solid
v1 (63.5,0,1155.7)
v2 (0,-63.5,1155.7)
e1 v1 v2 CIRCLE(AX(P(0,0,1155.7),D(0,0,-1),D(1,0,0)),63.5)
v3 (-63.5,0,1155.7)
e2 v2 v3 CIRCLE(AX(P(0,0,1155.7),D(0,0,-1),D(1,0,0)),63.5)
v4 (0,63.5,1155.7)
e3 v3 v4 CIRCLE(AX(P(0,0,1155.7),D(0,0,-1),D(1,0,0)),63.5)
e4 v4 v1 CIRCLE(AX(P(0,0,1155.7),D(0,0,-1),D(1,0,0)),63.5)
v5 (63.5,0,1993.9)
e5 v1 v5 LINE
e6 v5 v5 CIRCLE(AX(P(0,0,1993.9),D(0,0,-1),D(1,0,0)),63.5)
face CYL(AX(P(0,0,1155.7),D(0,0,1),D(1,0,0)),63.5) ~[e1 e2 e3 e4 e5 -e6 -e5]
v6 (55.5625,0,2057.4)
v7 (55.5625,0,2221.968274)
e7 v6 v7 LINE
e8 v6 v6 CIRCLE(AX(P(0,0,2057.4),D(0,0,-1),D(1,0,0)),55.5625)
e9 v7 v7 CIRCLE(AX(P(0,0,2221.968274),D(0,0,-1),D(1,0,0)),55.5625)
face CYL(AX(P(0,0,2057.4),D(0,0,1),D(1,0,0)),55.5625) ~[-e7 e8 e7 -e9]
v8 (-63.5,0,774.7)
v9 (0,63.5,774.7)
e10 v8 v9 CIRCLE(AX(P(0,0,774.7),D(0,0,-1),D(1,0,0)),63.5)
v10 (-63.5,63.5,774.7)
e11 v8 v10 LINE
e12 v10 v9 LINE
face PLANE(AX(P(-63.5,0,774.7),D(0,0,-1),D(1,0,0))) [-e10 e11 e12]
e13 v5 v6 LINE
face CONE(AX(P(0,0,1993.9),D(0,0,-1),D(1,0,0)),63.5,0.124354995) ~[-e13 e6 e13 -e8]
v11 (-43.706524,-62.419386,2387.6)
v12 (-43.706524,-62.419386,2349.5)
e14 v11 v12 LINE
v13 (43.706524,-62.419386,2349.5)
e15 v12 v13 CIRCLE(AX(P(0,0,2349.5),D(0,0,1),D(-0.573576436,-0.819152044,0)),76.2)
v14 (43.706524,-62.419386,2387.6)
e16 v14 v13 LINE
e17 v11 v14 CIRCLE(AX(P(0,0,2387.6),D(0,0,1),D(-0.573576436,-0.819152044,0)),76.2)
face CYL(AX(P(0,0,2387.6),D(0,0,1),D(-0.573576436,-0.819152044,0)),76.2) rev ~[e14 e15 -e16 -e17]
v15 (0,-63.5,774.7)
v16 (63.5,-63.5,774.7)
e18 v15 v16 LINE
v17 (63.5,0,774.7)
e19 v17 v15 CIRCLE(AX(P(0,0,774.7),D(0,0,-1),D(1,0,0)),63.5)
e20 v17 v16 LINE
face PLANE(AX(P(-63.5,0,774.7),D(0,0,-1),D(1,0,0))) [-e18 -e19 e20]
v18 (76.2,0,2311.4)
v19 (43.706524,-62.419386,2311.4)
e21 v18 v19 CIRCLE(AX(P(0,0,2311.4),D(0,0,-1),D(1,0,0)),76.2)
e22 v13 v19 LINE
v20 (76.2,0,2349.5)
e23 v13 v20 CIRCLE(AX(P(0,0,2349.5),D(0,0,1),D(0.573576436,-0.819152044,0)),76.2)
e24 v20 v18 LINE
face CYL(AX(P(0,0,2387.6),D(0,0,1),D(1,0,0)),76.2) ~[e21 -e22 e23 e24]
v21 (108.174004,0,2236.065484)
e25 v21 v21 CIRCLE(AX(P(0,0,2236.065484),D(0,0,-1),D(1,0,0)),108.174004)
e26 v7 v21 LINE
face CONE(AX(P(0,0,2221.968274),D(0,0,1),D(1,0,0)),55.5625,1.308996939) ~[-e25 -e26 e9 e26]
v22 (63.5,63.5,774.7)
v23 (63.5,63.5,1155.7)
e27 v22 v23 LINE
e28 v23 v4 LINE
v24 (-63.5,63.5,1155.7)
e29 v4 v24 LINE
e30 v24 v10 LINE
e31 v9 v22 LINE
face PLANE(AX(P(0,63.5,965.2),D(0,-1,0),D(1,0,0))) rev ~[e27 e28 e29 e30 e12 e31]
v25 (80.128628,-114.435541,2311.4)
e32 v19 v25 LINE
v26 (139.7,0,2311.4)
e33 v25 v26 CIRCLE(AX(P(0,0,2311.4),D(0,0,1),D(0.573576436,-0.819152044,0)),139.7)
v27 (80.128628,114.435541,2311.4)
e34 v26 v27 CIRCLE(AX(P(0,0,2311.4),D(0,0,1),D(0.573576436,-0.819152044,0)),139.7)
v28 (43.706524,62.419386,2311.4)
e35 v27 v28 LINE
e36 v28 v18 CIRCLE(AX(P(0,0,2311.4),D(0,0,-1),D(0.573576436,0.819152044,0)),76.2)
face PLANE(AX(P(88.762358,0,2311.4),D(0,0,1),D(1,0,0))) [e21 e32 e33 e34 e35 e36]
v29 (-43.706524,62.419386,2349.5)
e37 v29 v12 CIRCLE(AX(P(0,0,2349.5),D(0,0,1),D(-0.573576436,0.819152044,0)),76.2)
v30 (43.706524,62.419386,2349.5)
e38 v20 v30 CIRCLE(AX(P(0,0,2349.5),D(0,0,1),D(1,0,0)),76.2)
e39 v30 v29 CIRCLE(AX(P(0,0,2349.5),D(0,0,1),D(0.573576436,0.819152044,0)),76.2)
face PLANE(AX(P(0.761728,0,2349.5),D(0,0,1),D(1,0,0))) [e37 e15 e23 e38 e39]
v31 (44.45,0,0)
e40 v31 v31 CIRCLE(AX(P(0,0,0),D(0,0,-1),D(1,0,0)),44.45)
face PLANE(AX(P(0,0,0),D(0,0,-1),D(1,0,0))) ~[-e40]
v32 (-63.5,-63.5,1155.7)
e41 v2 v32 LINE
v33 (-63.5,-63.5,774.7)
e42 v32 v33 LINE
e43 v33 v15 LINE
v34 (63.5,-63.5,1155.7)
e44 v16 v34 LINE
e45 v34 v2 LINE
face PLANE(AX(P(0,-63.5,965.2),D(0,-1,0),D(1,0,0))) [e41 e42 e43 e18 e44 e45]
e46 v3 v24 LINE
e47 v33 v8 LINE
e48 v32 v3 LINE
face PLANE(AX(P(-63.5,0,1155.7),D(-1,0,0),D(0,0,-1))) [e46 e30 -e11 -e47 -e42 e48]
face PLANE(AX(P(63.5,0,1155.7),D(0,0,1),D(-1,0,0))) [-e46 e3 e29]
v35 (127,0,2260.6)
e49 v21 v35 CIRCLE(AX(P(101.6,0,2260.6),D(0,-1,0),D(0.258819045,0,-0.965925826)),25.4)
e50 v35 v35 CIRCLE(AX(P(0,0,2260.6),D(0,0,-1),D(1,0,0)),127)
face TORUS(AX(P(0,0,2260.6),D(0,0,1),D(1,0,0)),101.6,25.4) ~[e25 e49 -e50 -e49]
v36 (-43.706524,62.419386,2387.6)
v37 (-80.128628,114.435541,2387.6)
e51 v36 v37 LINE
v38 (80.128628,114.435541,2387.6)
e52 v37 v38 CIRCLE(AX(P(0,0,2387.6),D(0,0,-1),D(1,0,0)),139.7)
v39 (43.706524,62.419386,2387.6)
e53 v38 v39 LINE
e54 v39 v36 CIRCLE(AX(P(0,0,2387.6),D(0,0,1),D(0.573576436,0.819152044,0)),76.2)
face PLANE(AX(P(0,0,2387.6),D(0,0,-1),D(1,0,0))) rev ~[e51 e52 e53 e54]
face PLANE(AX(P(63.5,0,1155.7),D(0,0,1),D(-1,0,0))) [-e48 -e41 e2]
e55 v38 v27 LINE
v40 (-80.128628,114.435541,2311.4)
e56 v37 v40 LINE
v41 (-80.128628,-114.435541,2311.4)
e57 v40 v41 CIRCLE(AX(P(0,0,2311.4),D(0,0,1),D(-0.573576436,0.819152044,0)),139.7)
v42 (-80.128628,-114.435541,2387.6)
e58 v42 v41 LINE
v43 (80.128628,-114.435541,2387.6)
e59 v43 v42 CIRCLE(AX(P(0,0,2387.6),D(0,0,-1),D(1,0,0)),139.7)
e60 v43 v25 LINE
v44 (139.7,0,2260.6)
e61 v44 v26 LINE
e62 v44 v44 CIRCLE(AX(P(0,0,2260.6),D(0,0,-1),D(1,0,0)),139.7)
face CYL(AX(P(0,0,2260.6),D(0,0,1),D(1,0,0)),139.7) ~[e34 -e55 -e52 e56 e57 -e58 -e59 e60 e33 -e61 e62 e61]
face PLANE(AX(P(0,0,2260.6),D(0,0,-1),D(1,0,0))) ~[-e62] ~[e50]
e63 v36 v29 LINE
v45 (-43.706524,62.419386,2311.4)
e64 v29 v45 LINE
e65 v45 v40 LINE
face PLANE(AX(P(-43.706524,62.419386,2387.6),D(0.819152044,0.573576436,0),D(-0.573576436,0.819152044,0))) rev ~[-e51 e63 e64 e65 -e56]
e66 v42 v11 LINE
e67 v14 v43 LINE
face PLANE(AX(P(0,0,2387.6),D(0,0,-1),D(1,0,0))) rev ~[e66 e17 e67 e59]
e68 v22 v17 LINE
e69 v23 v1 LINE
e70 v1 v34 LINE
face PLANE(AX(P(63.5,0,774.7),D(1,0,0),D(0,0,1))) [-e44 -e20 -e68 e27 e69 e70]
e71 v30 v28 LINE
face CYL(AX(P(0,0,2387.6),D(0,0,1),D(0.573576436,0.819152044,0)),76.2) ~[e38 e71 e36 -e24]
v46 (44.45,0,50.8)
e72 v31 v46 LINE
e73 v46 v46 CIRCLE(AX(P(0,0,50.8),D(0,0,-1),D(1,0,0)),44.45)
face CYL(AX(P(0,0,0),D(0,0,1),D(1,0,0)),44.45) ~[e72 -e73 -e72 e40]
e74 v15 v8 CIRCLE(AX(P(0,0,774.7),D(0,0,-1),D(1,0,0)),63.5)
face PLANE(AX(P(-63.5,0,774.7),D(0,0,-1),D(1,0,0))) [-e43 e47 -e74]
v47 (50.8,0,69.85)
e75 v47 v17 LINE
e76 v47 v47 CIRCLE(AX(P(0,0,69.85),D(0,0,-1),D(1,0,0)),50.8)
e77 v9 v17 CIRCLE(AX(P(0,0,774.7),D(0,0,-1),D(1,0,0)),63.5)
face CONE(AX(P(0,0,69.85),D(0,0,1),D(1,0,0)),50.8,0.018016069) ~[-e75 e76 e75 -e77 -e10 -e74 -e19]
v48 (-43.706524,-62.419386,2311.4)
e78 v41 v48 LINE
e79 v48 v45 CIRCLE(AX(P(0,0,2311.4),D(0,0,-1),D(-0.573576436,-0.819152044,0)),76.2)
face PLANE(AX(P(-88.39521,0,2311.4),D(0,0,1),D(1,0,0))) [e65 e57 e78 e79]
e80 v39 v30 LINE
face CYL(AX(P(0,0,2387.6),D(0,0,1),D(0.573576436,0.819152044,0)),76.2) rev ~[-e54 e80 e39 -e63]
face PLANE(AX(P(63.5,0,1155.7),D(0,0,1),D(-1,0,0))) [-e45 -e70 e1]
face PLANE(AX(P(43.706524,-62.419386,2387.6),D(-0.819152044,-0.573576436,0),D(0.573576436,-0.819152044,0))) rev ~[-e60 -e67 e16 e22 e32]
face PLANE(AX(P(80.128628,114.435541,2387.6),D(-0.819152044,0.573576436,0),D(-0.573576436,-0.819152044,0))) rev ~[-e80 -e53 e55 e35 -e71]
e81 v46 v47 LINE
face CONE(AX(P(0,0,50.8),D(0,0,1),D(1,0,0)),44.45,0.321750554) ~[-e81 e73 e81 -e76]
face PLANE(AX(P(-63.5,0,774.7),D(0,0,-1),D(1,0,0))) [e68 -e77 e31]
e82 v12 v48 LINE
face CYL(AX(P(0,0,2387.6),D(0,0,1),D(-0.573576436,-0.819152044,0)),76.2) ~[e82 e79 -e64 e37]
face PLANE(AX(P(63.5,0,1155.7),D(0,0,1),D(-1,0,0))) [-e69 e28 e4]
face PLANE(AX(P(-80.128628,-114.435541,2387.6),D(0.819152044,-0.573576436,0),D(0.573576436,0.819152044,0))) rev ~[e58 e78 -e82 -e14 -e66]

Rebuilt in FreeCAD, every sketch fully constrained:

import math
import FreeCAD as App
import Part
import Sketcher
from FreeCAD import Vector
Q = App.Units.Quantity

doc = App.newDocument("Part")
body = doc.addObject("PartDesign::Body", "Body")

# Sketch on XZ plane
sketch1 = body.newObject("Sketcher::SketchObject", "Sketch")
sketch1.AttachmentSupport = (doc.getObject("XZ_Plane"), [""])
sketch1.MapMode = "FlatFace"
sketch1.addGeometry(Part.LineSegment(Vector(0, 1156, 0), Vector(64, 1156, 0)), False)
sketch1.addGeometry(Part.LineSegment(Vector(64, 1156, 0), Vector(64, 1994, 0)), False)
sketch1.addGeometry(Part.LineSegment(Vector(64, 1994, 0), Vector(56, 2057, 0)), False)
sketch1.addGeometry(Part.LineSegment(Vector(56, 2057, 0), Vector(56, 2222, 0)), False)
sketch1.addGeometry(Part.LineSegment(Vector(56, 2222, 0), Vector(108, 2236, 0)), False)
sketch1.addGeometry(Part.ArcOfCircle(Part.Circle(Vector(102, 2261, 0), Vector(0, 0, 1), 25), math.radians(-75), math.radians(0)), False)
sketch1.addGeometry(Part.LineSegment(Vector(127, 2261, 0), Vector(140, 2261, 0)), False)
sketch1.addGeometry(Part.LineSegment(Vector(140, 2261, 0), Vector(140, 2388, 0)), False)
sketch1.addGeometry(Part.LineSegment(Vector(140, 2388, 0), Vector(0, 2388, 0)), False)
sketch1.addGeometry(Part.LineSegment(Vector(0, 2388, 0), Vector(0, 1156, 0)), False)
sketch1.addConstraint(Sketcher.Constraint("Coincident", 0, 2, 1, 1))
sketch1.addConstraint(Sketcher.Constraint("Coincident", 1, 2, 2, 1))
sketch1.addConstraint(Sketcher.Constraint("Coincident", 2, 2, 3, 1))
sketch1.addConstraint(Sketcher.Constraint("Coincident", 3, 2, 4, 1))
sketch1.addConstraint(Sketcher.Constraint("Tangent", 4, 2, 5, 1))
sketch1.addConstraint(Sketcher.Constraint("Coincident", 5, 2, 6, 1))
sketch1.addConstraint(Sketcher.Constraint("Coincident", 6, 2, 7, 1))
sketch1.addConstraint(Sketcher.Constraint("Coincident", 7, 2, 8, 1))
sketch1.addConstraint(Sketcher.Constraint("Coincident", 8, 2, 9, 1))
sketch1.addConstraint(Sketcher.Constraint("Coincident", 9, 2, 0, 1))
sketch1.addConstraint(Sketcher.Constraint("Horizontal", 0))
sketch1.addConstraint(Sketcher.Constraint("Vertical", 1))
sketch1.addConstraint(Sketcher.Constraint("Vertical", 3))
sketch1.addConstraint(Sketcher.Constraint("Horizontal", 6))
sketch1.addConstraint(Sketcher.Constraint("Vertical", 7))
sketch1.addConstraint(Sketcher.Constraint("Horizontal", 8))
sketch1.addConstraint(Sketcher.Constraint("Vertical", 9))
sketch1.addConstraint(Sketcher.Constraint("PointOnObject", 8, 2, -2))
sketch1.addConstraint(Sketcher.Constraint("Radius", 5, Q("1 in")))
sketch1.addConstraint(Sketcher.Constraint("DistanceY", 1, 1, 1, 2, Q("33 in")))
sketch1.addConstraint(Sketcher.Constraint("DistanceY", 7, 1, 7, 2, Q("5 in")))
sketch1.addConstraint(Sketcher.Constraint("DistanceX", 0, 1, 0, 2, Q("2.5 in")))
sketch1.addConstraint(Sketcher.Constraint("DistanceX", 6, 1, 6, 2, Q("0.5 in")))
sketch1.addConstraint(Sketcher.Constraint("DistanceX", 8, 2, 8, 1, Q("5.5 in")))
sketch1.addConstraint(Sketcher.Constraint("DistanceY", 9, 2, 9, 1, Q("48.5 in")))
sketch1.addConstraint(Sketcher.Constraint("DistanceY", -1, 1, 5, 3, Q("89 in")))
sketch1.addConstraint(Sketcher.Constraint("DistanceY", -1, 1, 2, 2, Q("81 in")))
sketch1.addConstraint(Sketcher.Constraint("DistanceY", -1, 1, 5, 2, Q("89 in")))
sketch1.addConstraint(Sketcher.Constraint("Angle", 4, Q("15 deg")))
sketch1.addConstraint(Sketcher.Constraint("DistanceX", -1, 1, 2, 2, Q("2.1875 in")))
revolution = body.newObject("PartDesign::Revolution", "Revolution")
revolution.Profile = sketch1
revolution.ReferenceAxis = (sketch1, ["V_Axis"])
revolution.Angle = 360
body2 = doc.addObject("PartDesign::Body", "Body001")

# Sketch on XZ plane
sketch2 = body2.newObject("Sketcher::SketchObject", "Sketch001")
sketch2.AttachmentSupport = (doc.getObject("XZ_Plane001"), [""])
sketch2.MapMode = "FlatFace"
sketch2.addGeometry(Part.LineSegment(Vector(0, 775, 0), Vector(0, 0, 0)), False)
sketch2.addGeometry(Part.LineSegment(Vector(0, 0, 0), Vector(44, 0, 0)), False)
sketch2.addGeometry(Part.LineSegment(Vector(44, 0, 0), Vector(44, 51, 0)), False)
sketch2.addGeometry(Part.LineSegment(Vector(44, 51, 0), Vector(51, 70, 0)), False)
sketch2.addGeometry(Part.LineSegment(Vector(51, 70, 0), Vector(64, 775, 0)), False)
sketch2.addGeometry(Part.LineSegment(Vector(64, 775, 0), Vector(0, 775, 0)), False)
sketch2.addConstraint(Sketcher.Constraint("Coincident", 0, 2, 1, 1))
sketch2.addConstraint(Sketcher.Constraint("Coincident", 1, 2, 2, 1))
sketch2.addConstraint(Sketcher.Constraint("Coincident", 2, 2, 3, 1))
sketch2.addConstraint(Sketcher.Constraint("Coincident", 3, 2, 4, 1))
sketch2.addConstraint(Sketcher.Constraint("Coincident", 4, 2, 5, 1))
sketch2.addConstraint(Sketcher.Constraint("Coincident", 5, 2, 0, 1))
sketch2.addConstraint(Sketcher.Constraint("Vertical", 0))
sketch2.addConstraint(Sketcher.Constraint("Horizontal", 1))
sketch2.addConstraint(Sketcher.Constraint("Vertical", 2))
sketch2.addConstraint(Sketcher.Constraint("Horizontal", 5))
sketch2.addConstraint(Sketcher.Constraint("Coincident", 0, 2, -1, 1))
sketch2.addConstraint(Sketcher.Constraint("DistanceY", 2, 1, 2, 2, Q("2 in")))
sketch2.addConstraint(Sketcher.Constraint("DistanceX", 5, 2, 5, 1, Q("2.5 in")))
sketch2.addConstraint(Sketcher.Constraint("DistanceY", 0, 2, 0, 1, Q("30.5 in")))
sketch2.addConstraint(Sketcher.Constraint("DistanceX", -1, 1, 3, 2, Q("2 in")))
sketch2.addConstraint(Sketcher.Constraint("DistanceX", 1, 1, 1, 2, Q("1.75 in")))
sketch2.addConstraint(Sketcher.Constraint("DistanceY", -1, 1, 3, 2, Q("2.75 in")))
revolution2 = body2.newObject("PartDesign::Revolution", "Revolution001")
revolution2.Profile = sketch2
revolution2.ReferenceAxis = (sketch2, ["V_Axis"])
revolution2.Angle = 360
body.AllowCompound = True
doc.recompute()

boolean = body.newObject("PartDesign::Boolean", "Boolean")
boolean.Type = "Fuse"
boolean.addObjects([body2])

# Sketch on XZ plane
sketch3 = body.newObject("Sketcher::SketchObject", "Sketch002")
sketch3.AttachmentSupport = (doc.getObject("XZ_Plane"), [""])
sketch3.MapMode = "FlatFace"
sketch3.addGeometry(Part.LineSegment(Vector(-64, 775, 0), Vector(64, 775, 0)), False)
sketch3.addGeometry(Part.LineSegment(Vector(64, 775, 0), Vector(64, 1156, 0)), False)
sketch3.addGeometry(Part.LineSegment(Vector(64, 1156, 0), Vector(-64, 1156, 0)), False)
sketch3.addGeometry(Part.LineSegment(Vector(-64, 1156, 0), Vector(-64, 775, 0)), False)
sketch3.addConstraint(Sketcher.Constraint("Coincident", 0, 2, 1, 1))
sketch3.addConstraint(Sketcher.Constraint("Coincident", 1, 2, 2, 1))
sketch3.addConstraint(Sketcher.Constraint("Coincident", 2, 2, 3, 1))
sketch3.addConstraint(Sketcher.Constraint("Coincident", 3, 2, 0, 1))
sketch3.addConstraint(Sketcher.Constraint("Horizontal", 0))
sketch3.addConstraint(Sketcher.Constraint("Vertical", 1))
sketch3.addConstraint(Sketcher.Constraint("Horizontal", 2))
sketch3.addConstraint(Sketcher.Constraint("Vertical", 3))
sketch3.addConstraint(Sketcher.Constraint("DistanceX", 0, 1, 0, 2, Q("5 in")))
sketch3.addConstraint(Sketcher.Constraint("DistanceY", 1, 1, 1, 2, Q("15 in")))
sketch3.addConstraint(Sketcher.Constraint("DistanceX", -1, 1, 0, 2, Q("2.5 in")))
sketch3.addConstraint(Sketcher.Constraint("DistanceY", -1, 1, 0, 2, Q("30.5 in")))
pad1 = body.newObject("PartDesign::Pad", "Pad")
pad1.Profile = sketch3
pad1.Length = Q("5 in")
pad1.Midplane = True

# Sketch on XY plane
sketch4 = body.newObject("Sketcher::SketchObject", "Sketch003")
sketch4.AttachmentSupport = (doc.getObject("XY_Plane"), [""])
sketch4.MapMode = "FlatFace"
sketch4.AttachmentOffset = App.Placement(Vector(0, 0, 94 * 25.4), App.Rotation())
sketch4.addGeometry(Part.ArcOfCircle(Part.Circle(Vector(0, 0, 0), Vector(0, 0, 1), 76), math.radians(-55), math.radians(0)), False)
sketch4.addGeometry(Part.ArcOfCircle(Part.Circle(Vector(0, 0, 0), Vector(0, 0, 1), 76), math.radians(0), math.radians(55)), False)
sketch4.addGeometry(Part.ArcOfCircle(Part.Circle(Vector(0, 0, 0), Vector(0, 0, 1), 76), math.radians(55), math.radians(125)), False)
sketch4.addGeometry(Part.ArcOfCircle(Part.Circle(Vector(0, 0, 0), Vector(0, 0, 1), 76), math.radians(125), math.radians(235)), False)
sketch4.addGeometry(Part.ArcOfCircle(Part.Circle(Vector(0, 0, 0), Vector(0, 0, 1), 76), math.radians(-125), math.radians(-55)), False)
sketch4.addConstraint(Sketcher.Constraint("Tangent", 0, 2, 1, 1))
sketch4.addConstraint(Sketcher.Constraint("Tangent", 1, 2, 2, 1))
sketch4.addConstraint(Sketcher.Constraint("Tangent", 2, 2, 3, 1))
sketch4.addConstraint(Sketcher.Constraint("Tangent", 3, 2, 4, 1))
sketch4.addConstraint(Sketcher.Constraint("Tangent", 4, 2, 0, 1))
sketch4.addConstraint(Sketcher.Constraint("Coincident", 0, 3, -1, 1))
sketch4.addConstraint(Sketcher.Constraint("Coincident", 2, 3, -1, 1))
sketch4.addConstraint(Sketcher.Constraint("PointOnObject", 0, 2, -1))
sketch4.addConstraint(Sketcher.Constraint("Horizontal", 1, 2, 2, 2))
sketch4.addConstraint(Sketcher.Constraint("Horizontal", 3, 2, 4, 2))
sketch4.addConstraint(Sketcher.Constraint("Vertical", 2, 2, 3, 2))
sketch4.addConstraint(Sketcher.Constraint("Radius", 0, Q("3 in")))
sketch4.addConstraint(Sketcher.Constraint("DistanceX", -1, 1, 1, 2, 43.706524))
pocket1 = body.newObject("PartDesign::Pocket", "Pocket")
pocket1.Profile = sketch4
pocket1.Length = Q("1.5 in")

# Sketch on XY plane
sketch5 = body.newObject("Sketcher::SketchObject", "Sketch004")
sketch5.AttachmentSupport = (doc.getObject("XY_Plane"), [""])
sketch5.MapMode = "FlatFace"
sketch5.AttachmentOffset = App.Placement(Vector(0, 0, 94 * 25.4), App.Rotation())
sketch5.addGeometry(Part.ArcOfCircle(Part.Circle(Vector(0, 0, 0), Vector(0, 0, 1), 76), math.radians(125), math.radians(235)), False)
sketch5.addGeometry(Part.LineSegment(Vector(-44, 62, 0), Vector(-80, 114, 0)), False)
sketch5.addGeometry(Part.ArcOfCircle(Part.Circle(Vector(0, 0, 0), Vector(0, 0, 1), 140), math.radians(125), math.radians(235)), False)
sketch5.addGeometry(Part.LineSegment(Vector(-80, -114, 0), Vector(-44, -62, 0)), False)
sketch5.addGeometry(Part.ArcOfCircle(Part.Circle(Vector(0, 0, 0), Vector(0, 0, 1), 76), math.radians(0), math.radians(55)), False)
sketch5.addGeometry(Part.ArcOfCircle(Part.Circle(Vector(0, 0, 0), Vector(0, 0, 1), 76), math.radians(-55), math.radians(0)), False)
sketch5.addGeometry(Part.LineSegment(Vector(44, -62, 0), Vector(80, -114, 0)), False)
sketch5.addGeometry(Part.ArcOfCircle(Part.Circle(Vector(0, 0, 0), Vector(0, 0, 1), 140), math.radians(-55), math.radians(55)), False)
sketch5.addGeometry(Part.LineSegment(Vector(80, 114, 0), Vector(44, 62, 0)), False)
sketch5.addConstraint(Sketcher.Constraint("Coincident", 0, 1, 1, 1))
sketch5.addConstraint(Sketcher.Constraint("Coincident", 1, 2, 2, 1))
sketch5.addConstraint(Sketcher.Constraint("Coincident", 2, 2, 3, 1))
sketch5.addConstraint(Sketcher.Constraint("Coincident", 3, 2, 0, 2))
sketch5.addConstraint(Sketcher.Constraint("Tangent", 4, 1, 5, 2))
sketch5.addConstraint(Sketcher.Constraint("Coincident", 5, 1, 6, 1))
sketch5.addConstraint(Sketcher.Constraint("Coincident", 6, 2, 7, 1))
sketch5.addConstraint(Sketcher.Constraint("Coincident", 7, 2, 8, 1))
sketch5.addConstraint(Sketcher.Constraint("Coincident", 8, 2, 4, 2))
sketch5.addConstraint(Sketcher.Constraint("Coincident", 0, 3, -1, 1))
sketch5.addConstraint(Sketcher.Constraint("Coincident", 2, 3, -1, 1))
sketch5.addConstraint(Sketcher.Constraint("Coincident", 4, 3, -1, 1))
sketch5.addConstraint(Sketcher.Constraint("Coincident", 7, 3, -1, 1))
sketch5.addConstraint(Sketcher.Constraint("Equal", 0, 4))
sketch5.addConstraint(Sketcher.Constraint("Equal", 4, 5))
sketch5.addConstraint(Sketcher.Constraint("Equal", 2, 7))
sketch5.addConstraint(Sketcher.Constraint("PointOnObject", 4, 1, -1))
sketch5.addConstraint(Sketcher.Constraint("Parallel", 1, 6))
sketch5.addConstraint(Sketcher.Constraint("Parallel", 3, 8))
sketch5.addConstraint(Sketcher.Constraint("Horizontal", 3, 2, 5, 1))
sketch5.addConstraint(Sketcher.Constraint("Horizontal", 2, 2, 6, 2))
sketch5.addConstraint(Sketcher.Constraint("Horizontal", 1, 2, 7, 2))
sketch5.addConstraint(Sketcher.Constraint("Vertical", 1, 2, 2, 2))
sketch5.addConstraint(Sketcher.Constraint("Radius", 0, Q("3 in")))
sketch5.addConstraint(Sketcher.Constraint("Radius", 2, Q("5.5 in")))
sketch5.addConstraint(Sketcher.Constraint("Angle", 1, Q("125 deg")))
sketch5.addConstraint(Sketcher.Constraint("DistanceX", 1, 2, -1, 1, 80.128628))
pocket2 = body.newObject("PartDesign::Pocket", "Pocket001")
pocket2.Profile = sketch5
pocket2.Length = Q("3 in")

doc.recompute()
